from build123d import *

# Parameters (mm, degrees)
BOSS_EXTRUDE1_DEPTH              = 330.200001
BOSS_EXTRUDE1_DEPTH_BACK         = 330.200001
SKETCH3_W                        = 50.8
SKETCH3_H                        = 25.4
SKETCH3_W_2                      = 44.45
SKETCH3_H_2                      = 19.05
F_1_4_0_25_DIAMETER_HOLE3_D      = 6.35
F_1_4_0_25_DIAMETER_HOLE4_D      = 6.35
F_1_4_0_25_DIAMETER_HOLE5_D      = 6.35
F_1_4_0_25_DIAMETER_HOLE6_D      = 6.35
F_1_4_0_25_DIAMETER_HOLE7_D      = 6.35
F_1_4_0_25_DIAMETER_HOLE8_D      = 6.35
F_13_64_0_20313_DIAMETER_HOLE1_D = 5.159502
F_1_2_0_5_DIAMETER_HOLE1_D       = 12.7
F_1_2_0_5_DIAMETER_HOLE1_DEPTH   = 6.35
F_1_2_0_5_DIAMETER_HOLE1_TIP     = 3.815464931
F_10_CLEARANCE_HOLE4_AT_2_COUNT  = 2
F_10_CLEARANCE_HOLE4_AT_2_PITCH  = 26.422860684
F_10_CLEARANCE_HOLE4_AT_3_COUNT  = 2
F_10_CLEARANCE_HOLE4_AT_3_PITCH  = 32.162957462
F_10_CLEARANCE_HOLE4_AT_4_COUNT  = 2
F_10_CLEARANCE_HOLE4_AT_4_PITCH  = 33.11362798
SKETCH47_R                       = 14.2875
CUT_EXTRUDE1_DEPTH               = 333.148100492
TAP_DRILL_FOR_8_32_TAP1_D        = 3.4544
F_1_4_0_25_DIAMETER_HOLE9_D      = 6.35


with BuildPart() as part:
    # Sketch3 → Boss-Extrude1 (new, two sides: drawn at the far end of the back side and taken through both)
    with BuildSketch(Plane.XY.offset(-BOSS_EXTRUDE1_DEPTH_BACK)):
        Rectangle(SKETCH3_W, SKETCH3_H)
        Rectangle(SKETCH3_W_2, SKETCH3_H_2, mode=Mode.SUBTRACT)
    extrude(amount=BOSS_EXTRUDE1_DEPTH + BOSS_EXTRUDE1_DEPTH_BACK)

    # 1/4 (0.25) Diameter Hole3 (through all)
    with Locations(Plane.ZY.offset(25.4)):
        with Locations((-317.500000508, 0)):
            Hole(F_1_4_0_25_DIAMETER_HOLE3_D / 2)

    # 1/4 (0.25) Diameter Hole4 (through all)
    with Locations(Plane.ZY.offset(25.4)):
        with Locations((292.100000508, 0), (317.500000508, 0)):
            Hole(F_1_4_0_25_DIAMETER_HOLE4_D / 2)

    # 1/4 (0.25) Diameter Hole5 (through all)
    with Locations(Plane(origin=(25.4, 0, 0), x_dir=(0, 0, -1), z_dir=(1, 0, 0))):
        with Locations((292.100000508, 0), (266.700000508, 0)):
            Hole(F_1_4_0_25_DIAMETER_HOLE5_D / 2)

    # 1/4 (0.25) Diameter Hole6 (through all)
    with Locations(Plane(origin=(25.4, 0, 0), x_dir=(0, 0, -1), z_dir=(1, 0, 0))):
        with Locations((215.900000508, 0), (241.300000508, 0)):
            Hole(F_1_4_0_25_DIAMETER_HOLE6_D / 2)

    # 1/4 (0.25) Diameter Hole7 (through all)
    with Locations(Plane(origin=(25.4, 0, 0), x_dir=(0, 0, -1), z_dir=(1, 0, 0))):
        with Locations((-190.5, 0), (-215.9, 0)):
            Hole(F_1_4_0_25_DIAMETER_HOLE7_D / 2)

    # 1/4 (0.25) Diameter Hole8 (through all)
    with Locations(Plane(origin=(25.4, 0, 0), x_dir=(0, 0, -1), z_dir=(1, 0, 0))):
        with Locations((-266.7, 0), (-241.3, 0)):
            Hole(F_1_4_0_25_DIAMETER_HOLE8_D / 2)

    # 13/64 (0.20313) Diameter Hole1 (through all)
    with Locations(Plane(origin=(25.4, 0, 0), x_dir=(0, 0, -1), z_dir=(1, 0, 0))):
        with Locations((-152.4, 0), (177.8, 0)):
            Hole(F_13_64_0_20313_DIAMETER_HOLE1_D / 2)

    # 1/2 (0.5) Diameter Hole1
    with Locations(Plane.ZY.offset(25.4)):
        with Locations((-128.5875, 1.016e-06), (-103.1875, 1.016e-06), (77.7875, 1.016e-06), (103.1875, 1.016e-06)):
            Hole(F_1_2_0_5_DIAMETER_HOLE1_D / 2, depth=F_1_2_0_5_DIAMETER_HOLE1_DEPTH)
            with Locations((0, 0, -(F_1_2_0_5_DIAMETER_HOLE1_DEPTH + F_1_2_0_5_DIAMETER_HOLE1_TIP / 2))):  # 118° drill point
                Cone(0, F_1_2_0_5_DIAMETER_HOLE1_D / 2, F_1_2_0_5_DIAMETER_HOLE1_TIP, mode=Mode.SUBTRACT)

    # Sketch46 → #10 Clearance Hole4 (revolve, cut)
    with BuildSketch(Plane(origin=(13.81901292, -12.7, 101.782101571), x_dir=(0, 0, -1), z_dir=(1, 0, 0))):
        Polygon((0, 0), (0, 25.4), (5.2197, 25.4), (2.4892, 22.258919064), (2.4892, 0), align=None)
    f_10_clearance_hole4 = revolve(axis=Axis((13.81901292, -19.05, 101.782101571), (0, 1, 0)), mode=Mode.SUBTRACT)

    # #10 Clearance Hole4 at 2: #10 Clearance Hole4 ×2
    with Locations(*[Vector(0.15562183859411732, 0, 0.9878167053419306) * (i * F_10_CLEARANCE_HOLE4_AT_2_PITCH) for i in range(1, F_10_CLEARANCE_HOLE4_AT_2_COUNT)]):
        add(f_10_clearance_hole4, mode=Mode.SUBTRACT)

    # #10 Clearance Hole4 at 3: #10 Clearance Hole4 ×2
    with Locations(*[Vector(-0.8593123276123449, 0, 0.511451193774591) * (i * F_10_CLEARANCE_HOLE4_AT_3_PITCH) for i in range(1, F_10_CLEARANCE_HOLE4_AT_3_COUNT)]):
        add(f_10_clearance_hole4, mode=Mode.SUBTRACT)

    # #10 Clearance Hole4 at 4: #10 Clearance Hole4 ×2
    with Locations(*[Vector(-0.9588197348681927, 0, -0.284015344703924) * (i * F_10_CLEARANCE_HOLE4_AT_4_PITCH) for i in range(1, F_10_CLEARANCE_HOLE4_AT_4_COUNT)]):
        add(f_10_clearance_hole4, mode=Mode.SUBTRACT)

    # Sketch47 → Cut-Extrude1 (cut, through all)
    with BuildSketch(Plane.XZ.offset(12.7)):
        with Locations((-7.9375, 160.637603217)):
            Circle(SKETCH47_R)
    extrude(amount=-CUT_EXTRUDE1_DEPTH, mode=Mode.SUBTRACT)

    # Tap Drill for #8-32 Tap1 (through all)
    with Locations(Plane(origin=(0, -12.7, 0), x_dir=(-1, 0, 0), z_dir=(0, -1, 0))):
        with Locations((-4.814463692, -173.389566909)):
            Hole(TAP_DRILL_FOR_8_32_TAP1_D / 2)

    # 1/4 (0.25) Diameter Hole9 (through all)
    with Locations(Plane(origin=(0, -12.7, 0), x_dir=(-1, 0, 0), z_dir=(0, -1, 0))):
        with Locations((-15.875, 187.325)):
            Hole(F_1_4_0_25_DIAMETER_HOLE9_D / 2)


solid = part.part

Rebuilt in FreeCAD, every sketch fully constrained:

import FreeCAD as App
import Part
import Sketcher
from FreeCAD import Vector
Q = App.Units.Quantity


def add_polygon(sketch, points):
    """Adds a closed chain of lines whose ends are joined by coincident constraints."""
    first, n = sketch.GeometryCount, len(points)
    for a, b in zip(points, points[1:] + points[:1]):
        sketch.addGeometry(Part.LineSegment(App.Vector(*a, 0), App.Vector(*b, 0)), False)
    for i in range(n):
        sketch.addConstraint(Sketcher.Constraint("Coincident", first + i, 2, first + (i + 1) % n, 1))

doc = App.newDocument("Part")
body = doc.addObject("PartDesign::Body", "Body")

# Sketch on XY plane
sketch1 = doc.addObject("Sketcher::SketchObject", "Sketch")
body.addObject(sketch1)
sketch1.AttachmentSupport = (doc.XY_Plane, [""])
sketch1.MapMode = "FlatFace"
add_polygon(sketch1, [(-25.4, 12.7), (-25.4, -12.7), (25.4, -12.7), (25.4, 12.7)])  # lines 0-3
add_polygon(sketch1, [(22.225, -9.525), (-22.225, -9.525), (-22.225, 9.525), (22.225, 9.525)])  # lines 4-7
sketch1.addConstraint(Sketcher.Constraint("Vertical", 0))
sketch1.addConstraint(Sketcher.Constraint("Horizontal", 1))
sketch1.addConstraint(Sketcher.Constraint("Vertical", 2))
sketch1.addConstraint(Sketcher.Constraint("Horizontal", 3))
sketch1.addConstraint(Sketcher.Constraint("Horizontal", 4))
sketch1.addConstraint(Sketcher.Constraint("Vertical", 5))
sketch1.addConstraint(Sketcher.Constraint("Horizontal", 6))
sketch1.addConstraint(Sketcher.Constraint("Vertical", 7))
sketch1.addConstraint(Sketcher.Constraint("Symmetric", 0, 2, 2, 2, -1, 1))
sketch1.addConstraint(Sketcher.Constraint("Symmetric", 4, 2, 6, 2, -1, 1))
sketch1.addConstraint(Sketcher.Constraint("DistanceX", 1, 1, 1, 2, Q("2 in")))
sketch1.addConstraint(Sketcher.Constraint("DistanceY", 0, 2, 0, 1, Q("1 in")))
sketch1.addConstraint(Sketcher.Constraint("DistanceX", 4, 2, 4, 1, Q("1.75 in")))
sketch1.addConstraint(Sketcher.Constraint("DistanceY", 5, 1, 5, 2, Q("0.75 in")))
pad1 = doc.addObject("PartDesign::Pad", "Pad")
body.addObject(pad1)
pad1.Profile = sketch1
pad1.Type = "TwoLengths"
pad1.Length = Q("13 in")
pad1.Length2 = Q("13 in")

# Sketch on YZ plane
sketch2 = doc.addObject("Sketcher::SketchObject", "Sketch001")
body.addObject(sketch2)
sketch2.AttachmentSupport = (doc.YZ_Plane, [""])
sketch2.MapMode = "FlatFace"
sketch2.AttachmentOffset = App.Placement(Vector(0, 0, -1 * 25.4), App.Rotation())
sketch2.addGeometry(Part.Circle(Vector(0, -317.500001, 0), Vector(0, 0, 1), 3.175), False)
sketch2.addConstraint(Sketcher.Constraint("PointOnObject", 0, 3, -2))
sketch2.addConstraint(Sketcher.Constraint("Diameter", 0, Q("0.25 in")))
sketch2.addConstraint(Sketcher.Constraint("DistanceY", 0, 3, -1, 1, Q("12.5 in")))
doc.recompute()
hole = doc.addObject("PartDesign::Hole", "Hole")
body.addObject(hole)
hole.Profile = sketch2
hole.ThreadType = "None"
hole.Diameter = Q("0.25 in")
hole.DepthType = "ThroughAll"
hole.Reversed = True

# Sketch on YZ plane
sketch3 = doc.addObject("Sketcher::SketchObject", "Sketch002")
body.addObject(sketch3)
sketch3.AttachmentSupport = (doc.YZ_Plane, [""])
sketch3.MapMode = "FlatFace"
sketch3.AttachmentOffset = App.Placement(Vector(0, 0, -1 * 25.4), App.Rotation())
sketch3.addGeometry(Part.Circle(Vector(0, 292.100001, 0), Vector(0, 0, 1), 3.175), False)
sketch3.addGeometry(Part.Circle(Vector(0, 317.500001, 0), Vector(0, 0, 1), 3.175), False)
sketch3.addConstraint(Sketcher.Constraint("Equal", 0, 1))
sketch3.addConstraint(Sketcher.Constraint("PointOnObject", 0, 3, -2))
sketch3.addConstraint(Sketcher.Constraint("PointOnObject", 1, 3, -2))
sketch3.addConstraint(Sketcher.Constraint("Diameter", 0, Q("0.25 in")))
sketch3.addConstraint(Sketcher.Constraint("DistanceY", 0, 3, 1, 3, Q("1 in")))
sketch3.addConstraint(Sketcher.Constraint("DistanceY", -1, 1, 0, 3, Q("11.5 in")))
doc.recompute()
hole2 = doc.addObject("PartDesign::Hole", "Hole001")
body.addObject(hole2)
hole2.Profile = sketch3
hole2.ThreadType = "None"
hole2.Diameter = Q("0.25 in")
hole2.DepthType = "ThroughAll"
hole2.Reversed = True

# Sketch on YZ plane
sketch4 = doc.addObject("Sketcher::SketchObject", "Sketch003")
body.addObject(sketch4)
sketch4.AttachmentSupport = (doc.YZ_Plane, [""])
sketch4.MapMode = "FlatFace"
sketch4.AttachmentOffset = App.Placement(Vector(0, 0, 1 * 25.4), App.Rotation())
sketch4.addGeometry(Part.Circle(Vector(0, -292.100001, 0), Vector(0, 0, 1), 3.175), False)
sketch4.addGeometry(Part.Circle(Vector(0, -266.700001, 0), Vector(0, 0, 1), 3.175), False)
sketch4.addConstraint(Sketcher.Constraint("Equal", 0, 1))
sketch4.addConstraint(Sketcher.Constraint("PointOnObject", 0, 3, -2))
sketch4.addConstraint(Sketcher.Constraint("PointOnObject", 1, 3, -2))
sketch4.addConstraint(Sketcher.Constraint("Diameter", 0, Q("0.25 in")))
sketch4.addConstraint(Sketcher.Constraint("DistanceY", 0, 3, 1, 3, Q("1 in")))
sketch4.addConstraint(Sketcher.Constraint("DistanceY", 0, 3, -1, 1, Q("11.5 in")))
doc.recompute()
hole3 = doc.addObject("PartDesign::Hole", "Hole002")
body.addObject(hole3)
hole3.Profile = sketch4
hole3.ThreadType = "None"
hole3.Diameter = Q("0.25 in")
hole3.DepthType = "ThroughAll"

# Sketch on YZ plane
sketch5 = doc.addObject("Sketcher::SketchObject", "Sketch004")
body.addObject(sketch5)
sketch5.AttachmentSupport = (doc.YZ_Plane, [""])
sketch5.MapMode = "FlatFace"
sketch5.AttachmentOffset = App.Placement(Vector(0, 0, 1 * 25.4), App.Rotation())
sketch5.addGeometry(Part.Circle(Vector(0, -215.900001, 0), Vector(0, 0, 1), 3.175), False)
sketch5.addGeometry(Part.Circle(Vector(0, -241.300001, 0), Vector(0, 0, 1), 3.175), False)
sketch5.addConstraint(Sketcher.Constraint("Equal", 0, 1))
sketch5.addConstraint(Sketcher.Constraint("PointOnObject", 0, 3, -2))
sketch5.addConstraint(Sketcher.Constraint("PointOnObject", 1, 3, -2))
sketch5.addConstraint(Sketcher.Constraint("Diameter", 0, Q("0.25 in")))
sketch5.addConstraint(Sketcher.Constraint("DistanceY", 1, 3, 0, 3, Q("1 in")))
sketch5.addConstraint(Sketcher.Constraint("DistanceY", 0, 3, -1, 1, Q("8.5 in")))
doc.recompute()
hole4 = doc.addObject("PartDesign::Hole", "Hole003")
body.addObject(hole4)
hole4.Profile = sketch5
hole4.ThreadType = "None"
hole4.Diameter = Q("0.25 in")
hole4.DepthType = "ThroughAll"

# Sketch on YZ plane
sketch6 = doc.addObject("Sketcher::SketchObject", "Sketch005")
body.addObject(sketch6)
sketch6.AttachmentSupport = (doc.YZ_Plane, [""])
sketch6.MapMode = "FlatFace"
sketch6.AttachmentOffset = App.Placement(Vector(0, 0, 1 * 25.4), App.Rotation())
sketch6.addGeometry(Part.Circle(Vector(0, 190.5, 0), Vector(0, 0, 1), 3.175), False)
sketch6.addGeometry(Part.Circle(Vector(0, 215.9, 0), Vector(0, 0, 1), 3.175), False)
sketch6.addConstraint(Sketcher.Constraint("Equal", 0, 1))
sketch6.addConstraint(Sketcher.Constraint("PointOnObject", 0, 3, -2))
sketch6.addConstraint(Sketcher.Constraint("PointOnObject", 1, 3, -2))
sketch6.addConstraint(Sketcher.Constraint("Diameter", 0, Q("0.25 in")))
sketch6.addConstraint(Sketcher.Constraint("DistanceY", 0, 3, 1, 3, Q("1 in")))
sketch6.addConstraint(Sketcher.Constraint("DistanceY", -1, 1, 0, 3, Q("7.5 in")))
doc.recompute()
hole5 = doc.addObject("PartDesign::Hole", "Hole004")
body.addObject(hole5)
hole5.Profile = sketch6
hole5.ThreadType = "None"
hole5.Diameter = Q("0.25 in")
hole5.DepthType = "ThroughAll"

# Sketch on YZ plane
sketch7 = doc.addObject("Sketcher::SketchObject", "Sketch006")
body.addObject(sketch7)
sketch7.AttachmentSupport = (doc.YZ_Plane, [""])
sketch7.MapMode = "FlatFace"
sketch7.AttachmentOffset = App.Placement(Vector(0, 0, 1 * 25.4), App.Rotation())
sketch7.addGeometry(Part.Circle(Vector(0, 266.7, 0), Vector(0, 0, 1), 3.175), False)
sketch7.addGeometry(Part.Circle(Vector(0, 241.3, 0), Vector(0, 0, 1), 3.175), False)
sketch7.addConstraint(Sketcher.Constraint("Equal", 0, 1))
sketch7.addConstraint(Sketcher.Constraint("PointOnObject", 0, 3, -2))
sketch7.addConstraint(Sketcher.Constraint("PointOnObject", 1, 3, -2))
sketch7.addConstraint(Sketcher.Constraint("Diameter", 0, Q("0.25 in")))
sketch7.addConstraint(Sketcher.Constraint("DistanceY", 1, 3, 0, 3, Q("1 in")))
sketch7.addConstraint(Sketcher.Constraint("DistanceY", -1, 1, 0, 3, Q("10.5 in")))
doc.recompute()
hole6 = doc.addObject("PartDesign::Hole", "Hole005")
body.addObject(hole6)
hole6.Profile = sketch7
hole6.ThreadType = "None"
hole6.Diameter = Q("0.25 in")
hole6.DepthType = "ThroughAll"

# Sketch on YZ plane
sketch8 = doc.addObject("Sketcher::SketchObject", "Sketch007")
body.addObject(sketch8)
sketch8.AttachmentSupport = (doc.YZ_Plane, [""])
sketch8.MapMode = "FlatFace"
sketch8.AttachmentOffset = App.Placement(Vector(0, 0, 1 * 25.4), App.Rotation())
sketch8.addGeometry(Part.Circle(Vector(0, 152.4, 0), Vector(0, 0, 1), 2.579751), False)
sketch8.addGeometry(Part.Circle(Vector(0, -177.8, 0), Vector(0, 0, 1), 2.579751), False)
sketch8.addConstraint(Sketcher.Constraint("Equal", 0, 1))
sketch8.addConstraint(Sketcher.Constraint("PointOnObject", 0, 3, -2))
sketch8.addConstraint(Sketcher.Constraint("PointOnObject", 1, 3, -2))
sketch8.addConstraint(Sketcher.Constraint("DistanceY", -1, 1, 0, 3, Q("6 in")))
sketch8.addConstraint(Sketcher.Constraint("DistanceY", 1, 3, -1, 1, Q("7 in")))
sketch8.addConstraint(Sketcher.Constraint("Diameter", 0, Q("5.159502 mm")))
doc.recompute()
hole7 = doc.addObject("PartDesign::Hole", "Hole006")
body.addObject(hole7)
hole7.Profile = sketch8
hole7.ThreadType = "None"
hole7.Diameter = 5.159502
hole7.DepthType = "ThroughAll"

# Sketch on YZ plane
sketch9 = doc.addObject("Sketcher::SketchObject", "Sketch008")
body.addObject(sketch9)
sketch9.AttachmentSupport = (doc.YZ_Plane, [""])
sketch9.MapMode = "FlatFace"
sketch9.AttachmentOffset = App.Placement(Vector(0, 0, -1 * 25.4), App.Rotation())
sketch9.addGeometry(Part.Circle(Vector(0.000001, -128.5875, 0), Vector(0, 0, 1), 6.35), False)
sketch9.addGeometry(Part.Circle(Vector(0.000001, -103.1875, 0), Vector(0, 0, 1), 6.35), False)
sketch9.addGeometry(Part.Circle(Vector(0.000001, 77.7875, 0), Vector(0, 0, 1), 6.35), False)
sketch9.addGeometry(Part.Circle(Vector(0.000001, 103.1875, 0), Vector(0, 0, 1), 6.35), False)
sketch9.addConstraint(Sketcher.Constraint("Equal", 0, 1))
sketch9.addConstraint(Sketcher.Constraint("Equal", 1, 2))
sketch9.addConstraint(Sketcher.Constraint("Equal", 2, 3))
sketch9.addConstraint(Sketcher.Constraint("Symmetric", 1, 3, 3, 3, -1, 1))
sketch9.addConstraint(Sketcher.Constraint("PointOnObject", 0, 3, -2))
sketch9.addConstraint(Sketcher.Constraint("PointOnObject", 1, 3, -2))
sketch9.addConstraint(Sketcher.Constraint("PointOnObject", 2, 3, -2))
sketch9.addConstraint(Sketcher.Constraint("Diameter", 0, Q("0.5 in")))
sketch9.addConstraint(Sketcher.Constraint("DistanceY", 0, 3, 1, 3, Q("1 in")))
sketch9.addConstraint(Sketcher.Constraint("DistanceY", 2, 3, 3, 3, Q("1 in")))
sketch9.addConstraint(Sketcher.Constraint("DistanceY", 0, 3, -1, 1, Q("5.0625 in")))
doc.recompute()
hole8 = doc.addObject("PartDesign::Hole", "Hole007")
body.addObject(hole8)
hole8.Profile = sketch9
hole8.ThreadType = "None"
hole8.Diameter = Q("0.5 in")
hole8.DepthType = "Dimension"
hole8.Depth = Q("0.25 in")
hole8.DrillPoint = "Angled"
hole8.DrillPointAngle = 118
hole8.Reversed = True

# Sketch on YZ plane
sketch10 = doc.addObject("Sketcher::SketchObject", "Sketch009")
body.addObject(sketch10)
sketch10.AttachmentSupport = (doc.YZ_Plane, [""])
sketch10.MapMode = "FlatFace"
sketch10.AttachmentOffset = App.Placement(Vector(0, 0, 13.819013), App.Rotation())
add_polygon(sketch10, [(12.7, 101.782102), (-12.7, 101.782102), (-12.7, 99.292902), (9.558919, 99.292902), (12.7, 96.562402)])  # lines 0-4
sketch10.addGeometry(Part.LineSegment(Vector(-12.7, 101.782102, 0), Vector(12.7, 101.782102, 0)), True)  # axis
sketch10.addConstraint(Sketcher.Constraint("Horizontal", 0))
sketch10.addConstraint(Sketcher.Constraint("Vertical", 1))
sketch10.addConstraint(Sketcher.Constraint("Horizontal", 2))
sketch10.addConstraint(Sketcher.Constraint("Vertical", 4))
sketch10.addConstraint(Sketcher.Constraint("Horizontal", 5))
sketch10.addConstraint(Sketcher.Constraint("Coincident", 5, 1, 0, 2))
sketch10.addConstraint(Sketcher.Constraint("Vertical", 3, 2, 5, 2))
sketch10.addConstraint(Sketcher.Constraint("DistanceX", 0, 2, 0, 1, Q("1 in")))
sketch10.addConstraint(Sketcher.Constraint("Angle", 3, Q("-41 deg")))
sketch10.addConstraint(Sketcher.Constraint("DistanceX", 0, 2, -1, 1, Q("0.5 in")))
sketch10.addConstraint(Sketcher.Constraint("DistanceY", 1, 2, 1, 1, Q("0.098 in")))
sketch10.addConstraint(Sketcher.Constraint("DistanceY", 4, 1, 4, 2, Q("0.2055 in")))
sketch10.addConstraint(Sketcher.Constraint("DistanceY", -1, 1, 0, 2, Q("101.782102 mm")))
groove = doc.addObject("PartDesign::Groove", "Groove")
body.addObject(groove)
groove.Profile = sketch10
groove.ReferenceAxis = (sketch10, ["Axis0"])
groove.Angle = 360
doc.recompute()

datumline = doc.addObject("PartDesign::Line", "DatumLine")
body.addObject(datumline)
datumline.Placement = App.Placement(Vector(0, 0, 0), App.Rotation(Vector(0, 0, 1), Vector(0.155621839, 0, 0.987816705)))
linearpattern = doc.addObject("PartDesign::LinearPattern", "LinearPattern")
body.addObject(linearpattern)
linearpattern.Originals = [groove]
linearpattern.Direction = (datumline, [""])
linearpattern.Mode = "offset"
linearpattern.Offset = 26.422861
linearpattern.Occurrences = 2
body.Tip = linearpattern
doc.recompute()

datumline2 = doc.addObject("PartDesign::Line", "DatumLine001")
body.addObject(datumline2)
datumline2.Placement = App.Placement(Vector(0, 0, 0), App.Rotation(Vector(0, 0, 1), Vector(-0.859312328, 0, 0.511451194)))
linearpattern2 = doc.addObject("PartDesign::LinearPattern", "LinearPattern001")
body.addObject(linearpattern2)
linearpattern2.Originals = [groove]
linearpattern2.Direction = (datumline2, [""])
linearpattern2.Mode = "offset"
linearpattern2.Offset = 32.162957
linearpattern2.Occurrences = 2
body.Tip = linearpattern2
doc.recompute()

datumline3 = doc.addObject("PartDesign::Line", "DatumLine002")
body.addObject(datumline3)
datumline3.Placement = App.Placement(Vector(0, 0, 0), App.Rotation(Vector(0, 0, 1), Vector(-0.958819735, 0, -0.284015345)))
linearpattern3 = doc.addObject("PartDesign::LinearPattern", "LinearPattern002")
body.addObject(linearpattern3)
linearpattern3.Originals = [groove]
linearpattern3.Direction = (datumline3, [""])
linearpattern3.Mode = "offset"
linearpattern3.Offset = 33.113628
linearpattern3.Occurrences = 2
body.Tip = linearpattern3

# Sketch on XZ plane
sketch11 = doc.addObject("Sketcher::SketchObject", "Sketch010")
body.addObject(sketch11)
sketch11.AttachmentSupport = (doc.XZ_Plane, [""])
sketch11.MapMode = "FlatFace"
sketch11.AttachmentOffset = App.Placement(Vector(0, 0, 0.5 * 25.4), App.Rotation())
sketch11.addGeometry(Part.Circle(Vector(-7.9375, 160.637603, 0), Vector(0, 0, 1), 14.2875), False)
sketch11.addConstraint(Sketcher.Constraint("Diameter", 0, Q("1.125 in")))
sketch11.addConstraint(Sketcher.Constraint("DistanceX", 0, 3, -1, 1, Q("0.3125 in")))
sketch11.addConstraint(Sketcher.Constraint("DistanceY", -1, 1, 0, 3, Q("160.637603 mm")))
pocket1 = doc.addObject("PartDesign::Pocket", "Pocket")
body.addObject(pocket1)
pocket1.Profile = sketch11
pocket1.Type = "ThroughAll"

# Sketch on XZ plane
sketch12 = doc.addObject("Sketcher::SketchObject", "Sketch011")
body.addObject(sketch12)
sketch12.AttachmentSupport = (doc.XZ_Plane, [""])
sketch12.MapMode = "FlatFace"
sketch12.AttachmentOffset = App.Placement(Vector(0, 0, 0.5 * 25.4), App.Rotation())
sketch12.addGeometry(Part.Circle(Vector(4.814464, 173.389567, 0), Vector(0, 0, 1), 1.7272), False)
sketch12.addConstraint(Sketcher.Constraint("Diameter", 0, Q("0.136 in")))
sketch12.addConstraint(Sketcher.Constraint("DistanceX", -1, 1, 0, 3, Q("4.814464 mm")))
sketch12.addConstraint(Sketcher.Constraint("DistanceY", -1, 1, 0, 3, Q("173.389567 mm")))
doc.recompute()
hole9 = doc.addObject("PartDesign::Hole", "Hole008")
body.addObject(hole9)
hole9.Profile = sketch12
hole9.ThreadType = "None"
hole9.Diameter = Q("0.136 in")
hole9.DepthType = "ThroughAll"

# Sketch on XZ plane
sketch13 = doc.addObject("Sketcher::SketchObject", "Sketch012")
body.addObject(sketch13)
sketch13.AttachmentSupport = (doc.XZ_Plane, [""])
sketch13.MapMode = "FlatFace"
sketch13.AttachmentOffset = App.Placement(Vector(0, 0, 0.5 * 25.4), App.Rotation())
sketch13.addGeometry(Part.Circle(Vector(15.875, -187.325, 0), Vector(0, 0, 1), 3.175), False)
sketch13.addConstraint(Sketcher.Constraint("Diameter", 0, Q("0.25 in")))
sketch13.addConstraint(Sketcher.Constraint("DistanceX", -1, 1, 0, 3, Q("0.625 in")))
sketch13.addConstraint(Sketcher.Constraint("DistanceY", 0, 3, -1, 1, Q("7.375 in")))
doc.recompute()
hole10 = doc.addObject("PartDesign::Hole", "Hole009")
body.addObject(hole10)
hole10.Profile = sketch13
hole10.ThreadType = "None"
hole10.Diameter = Q("0.25 in")
hole10.DepthType = "ThroughAll"

doc.recompute()
